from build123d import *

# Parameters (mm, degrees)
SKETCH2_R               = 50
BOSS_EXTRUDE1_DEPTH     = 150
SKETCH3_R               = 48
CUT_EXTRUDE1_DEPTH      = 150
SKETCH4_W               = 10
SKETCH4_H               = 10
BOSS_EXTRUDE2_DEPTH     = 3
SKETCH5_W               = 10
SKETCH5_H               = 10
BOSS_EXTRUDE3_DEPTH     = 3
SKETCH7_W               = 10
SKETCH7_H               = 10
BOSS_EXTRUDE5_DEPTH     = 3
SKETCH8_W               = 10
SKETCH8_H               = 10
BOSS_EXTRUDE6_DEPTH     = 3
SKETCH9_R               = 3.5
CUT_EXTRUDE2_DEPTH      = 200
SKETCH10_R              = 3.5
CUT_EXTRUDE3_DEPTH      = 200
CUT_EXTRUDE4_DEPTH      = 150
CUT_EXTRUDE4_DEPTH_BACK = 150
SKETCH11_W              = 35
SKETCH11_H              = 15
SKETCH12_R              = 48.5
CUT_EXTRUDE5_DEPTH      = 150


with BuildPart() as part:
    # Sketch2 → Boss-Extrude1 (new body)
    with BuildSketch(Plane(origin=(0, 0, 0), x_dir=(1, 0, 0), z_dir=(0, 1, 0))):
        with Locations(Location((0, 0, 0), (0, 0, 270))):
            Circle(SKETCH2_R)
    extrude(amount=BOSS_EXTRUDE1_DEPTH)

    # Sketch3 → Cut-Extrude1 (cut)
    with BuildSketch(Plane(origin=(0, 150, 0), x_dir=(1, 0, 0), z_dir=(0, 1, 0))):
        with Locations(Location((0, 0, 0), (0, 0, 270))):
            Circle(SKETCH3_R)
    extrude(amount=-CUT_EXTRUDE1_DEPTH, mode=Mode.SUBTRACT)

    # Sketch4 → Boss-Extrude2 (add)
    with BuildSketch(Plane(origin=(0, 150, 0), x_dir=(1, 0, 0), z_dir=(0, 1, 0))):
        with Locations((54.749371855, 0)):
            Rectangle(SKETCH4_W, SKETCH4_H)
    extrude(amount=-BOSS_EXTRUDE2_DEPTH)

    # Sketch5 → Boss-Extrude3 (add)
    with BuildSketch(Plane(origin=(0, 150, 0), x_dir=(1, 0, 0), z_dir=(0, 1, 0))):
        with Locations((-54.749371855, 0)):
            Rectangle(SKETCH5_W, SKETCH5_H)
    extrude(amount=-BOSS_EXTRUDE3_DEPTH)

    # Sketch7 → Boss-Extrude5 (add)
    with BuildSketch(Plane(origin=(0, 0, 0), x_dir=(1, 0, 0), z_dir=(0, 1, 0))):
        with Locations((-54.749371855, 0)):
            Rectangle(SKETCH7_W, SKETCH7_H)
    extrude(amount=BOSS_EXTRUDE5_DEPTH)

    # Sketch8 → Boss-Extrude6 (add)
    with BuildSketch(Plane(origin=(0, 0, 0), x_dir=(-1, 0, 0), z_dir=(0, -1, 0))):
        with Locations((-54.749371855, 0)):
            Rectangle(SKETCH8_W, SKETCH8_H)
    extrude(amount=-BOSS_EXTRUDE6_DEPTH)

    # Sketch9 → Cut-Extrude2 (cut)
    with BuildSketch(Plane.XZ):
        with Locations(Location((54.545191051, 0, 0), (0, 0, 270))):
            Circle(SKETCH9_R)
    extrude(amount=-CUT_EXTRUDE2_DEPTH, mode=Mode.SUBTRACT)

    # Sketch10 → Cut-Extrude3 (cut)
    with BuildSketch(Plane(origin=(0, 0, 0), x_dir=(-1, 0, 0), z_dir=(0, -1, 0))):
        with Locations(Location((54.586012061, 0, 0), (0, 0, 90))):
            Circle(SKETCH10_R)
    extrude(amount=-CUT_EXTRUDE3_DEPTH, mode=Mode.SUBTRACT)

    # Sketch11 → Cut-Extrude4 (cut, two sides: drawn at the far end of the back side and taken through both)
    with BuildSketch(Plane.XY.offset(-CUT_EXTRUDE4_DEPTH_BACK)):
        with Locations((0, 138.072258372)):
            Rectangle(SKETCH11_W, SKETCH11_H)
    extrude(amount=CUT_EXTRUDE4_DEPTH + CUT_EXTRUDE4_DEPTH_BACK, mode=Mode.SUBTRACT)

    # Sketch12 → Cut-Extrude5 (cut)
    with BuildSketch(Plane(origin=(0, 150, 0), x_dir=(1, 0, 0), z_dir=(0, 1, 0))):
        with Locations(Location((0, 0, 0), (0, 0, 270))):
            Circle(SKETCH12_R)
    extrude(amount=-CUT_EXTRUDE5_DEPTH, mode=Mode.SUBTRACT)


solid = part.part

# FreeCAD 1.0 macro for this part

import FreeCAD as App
import Part
import Sketcher

V = App.Vector

doc = App.newDocument("Part")
body = doc.addObject("PartDesign::Body", "Body")

# Sketch on XZ plane
sketch1 = body.newObject("Sketcher::SketchObject", "Sketch")
sketch1.AttachmentSupport = (doc.getObject("XZ_Plane"), [""])
sketch1.MapMode = "FlatFace"
sketch1.addGeometry(Part.Circle(V(0, 0, 0), V(0, 0, 1), 50), False)
sketch1.addConstraint([
    Sketcher.Constraint("Coincident", 0, 3, -1, 1),
    Sketcher.Constraint("Diameter", 0, 100.0),
])
pad1 = body.newObject("PartDesign::Pad", "Pad")
pad1.Profile = sketch1
pad1.Length = 150
pad1.Reversed = True

# Sketch on XZ plane
sketch2 = body.newObject("Sketcher::SketchObject", "Sketch001")
sketch2.AttachmentSupport = (doc.getObject("XZ_Plane"), [""])
sketch2.MapMode = "FlatFace"
sketch2.AttachmentOffset = App.Placement(V(0, 0, -150), App.Rotation())
sketch2.addGeometry(Part.Circle(V(0, 0, 0), V(0, 0, 1), 48), False)
sketch2.addConstraint([
    Sketcher.Constraint("Coincident", 0, 3, -1, 1),
    Sketcher.Constraint("Diameter", 0, 96.0),
])
pocket1 = body.newObject("PartDesign::Pocket", "Pocket")
pocket1.Profile = sketch2
pocket1.Length = 150
pocket1.Reversed = True

# Sketch on XZ plane
sketch3 = body.newObject("Sketcher::SketchObject", "Sketch002")
sketch3.AttachmentSupport = (doc.getObject("XZ_Plane"), [""])
sketch3.MapMode = "FlatFace"
sketch3.AttachmentOffset = App.Placement(V(0, 0, -150), App.Rotation())
sketch3.addGeometry([
    Part.LineSegment(V(49.749372, -5, 0), V(49.749372, 5, 0)),
    Part.LineSegment(V(49.749372, 5, 0), V(59.749372, 5, 0)),
    Part.LineSegment(V(59.749372, 5, 0), V(59.749372, -5, 0)),
    Part.LineSegment(V(59.749372, -5, 0), V(49.749372, -5, 0)),
], False)
sketch3.addConstraint([
    Sketcher.Constraint("Coincident", 0, 2, 1, 1),
    Sketcher.Constraint("Coincident", 1, 2, 2, 1),
    Sketcher.Constraint("Coincident", 2, 2, 3, 1),
    Sketcher.Constraint("Coincident", 3, 2, 0, 1),
    Sketcher.Constraint("Vertical", 0),
    Sketcher.Constraint("Horizontal", 1),
    Sketcher.Constraint("Vertical", 2),
    Sketcher.Constraint("Horizontal", 3),
    Sketcher.Constraint("Equal", 3, 0),
    Sketcher.Constraint("DistanceX", 1, 1, 1, 2, 10.0),
    Sketcher.Constraint("DistanceY", -1, 1, 0, 2, 5.0),
    Sketcher.Constraint("DistanceX", -1, 1, 0, 2, 49.749372),
])
pad2 = body.newObject("PartDesign::Pad", "Pad001")
pad2.Profile = sketch3
pad2.Length = 3

# Sketch on XZ plane
sketch4 = body.newObject("Sketcher::SketchObject", "Sketch003")
sketch4.AttachmentSupport = (doc.getObject("XZ_Plane"), [""])
sketch4.MapMode = "FlatFace"
sketch4.AttachmentOffset = App.Placement(V(0, 0, -150), App.Rotation())
sketch4.addGeometry([
    Part.LineSegment(V(-59.749372, -5, 0), V(-59.749372, 5, 0)),
    Part.LineSegment(V(-59.749372, 5, 0), V(-49.749372, 5, 0)),
    Part.LineSegment(V(-49.749372, 5, 0), V(-49.749372, -5, 0)),
    Part.LineSegment(V(-49.749372, -5, 0), V(-59.749372, -5, 0)),
], False)
sketch4.addConstraint([
    Sketcher.Constraint("Coincident", 0, 2, 1, 1),
    Sketcher.Constraint("Coincident", 1, 2, 2, 1),
    Sketcher.Constraint("Coincident", 2, 2, 3, 1),
    Sketcher.Constraint("Coincident", 3, 2, 0, 1),
    Sketcher.Constraint("Vertical", 0),
    Sketcher.Constraint("Horizontal", 1),
    Sketcher.Constraint("Vertical", 2),
    Sketcher.Constraint("Horizontal", 3),
    Sketcher.Constraint("Equal", 3, 0),
    Sketcher.Constraint("DistanceX", 1, 1, 1, 2, 10.0),
    Sketcher.Constraint("DistanceY", -1, 1, 0, 2, 5.0),
    Sketcher.Constraint("DistanceX", 0, 2, -1, 1, 59.749372),
])
pad3 = body.newObject("PartDesign::Pad", "Pad002")
pad3.Profile = sketch4
pad3.Length = 3

# Sketch on XZ plane
sketch5 = body.newObject("Sketcher::SketchObject", "Sketch004")
sketch5.AttachmentSupport = (doc.getObject("XZ_Plane"), [""])
sketch5.MapMode = "FlatFace"
sketch5.addGeometry([
    Part.LineSegment(V(-59.749372, -5, 0), V(-59.749372, 5, 0)),
    Part.LineSegment(V(-59.749372, 5, 0), V(-49.749372, 5, 0)),
    Part.LineSegment(V(-49.749372, 5, 0), V(-49.749372, -5, 0)),
    Part.LineSegment(V(-49.749372, -5, 0), V(-59.749372, -5, 0)),
], False)
sketch5.addConstraint([
    Sketcher.Constraint("Coincident", 0, 2, 1, 1),
    Sketcher.Constraint("Coincident", 1, 2, 2, 1),
    Sketcher.Constraint("Coincident", 2, 2, 3, 1),
    Sketcher.Constraint("Coincident", 3, 2, 0, 1),
    Sketcher.Constraint("Vertical", 0),
    Sketcher.Constraint("Horizontal", 1),
    Sketcher.Constraint("Vertical", 2),
    Sketcher.Constraint("Horizontal", 3),
    Sketcher.Constraint("Equal", 3, 0),
    Sketcher.Constraint("DistanceX", 1, 1, 1, 2, 10.0),
    Sketcher.Constraint("DistanceY", -1, 1, 0, 2, 5.0),
    Sketcher.Constraint("DistanceX", 0, 2, -1, 1, 59.749372),
])
pad4 = body.newObject("PartDesign::Pad", "Pad003")
pad4.Profile = sketch5
pad4.Length = 3
pad4.Reversed = True

# Sketch on XZ plane
sketch6 = body.newObject("Sketcher::SketchObject", "Sketch005")
sketch6.AttachmentSupport = (doc.getObject("XZ_Plane"), [""])
sketch6.MapMode = "FlatFace"
sketch6.addGeometry([
    Part.LineSegment(V(59.749372, -5, 0), V(59.749372, 5, 0)),
    Part.LineSegment(V(59.749372, 5, 0), V(49.749372, 5, 0)),
    Part.LineSegment(V(49.749372, 5, 0), V(49.749372, -5, 0)),
    Part.LineSegment(V(49.749372, -5, 0), V(59.749372, -5, 0)),
], False)
sketch6.addConstraint([
    Sketcher.Constraint("Coincident", 0, 2, 1, 1),
    Sketcher.Constraint("Coincident", 1, 2, 2, 1),
    Sketcher.Constraint("Coincident", 2, 2, 3, 1),
    Sketcher.Constraint("Coincident", 3, 2, 0, 1),
    Sketcher.Constraint("Vertical", 0),
    Sketcher.Constraint("Horizontal", 1),
    Sketcher.Constraint("Vertical", 2),
    Sketcher.Constraint("Horizontal", 3),
    Sketcher.Constraint("Equal", 3, 0),
    Sketcher.Constraint("DistanceX", 1, 2, 1, 1, 10.0),
    Sketcher.Constraint("DistanceY", -1, 1, 0, 2, 5.0),
    Sketcher.Constraint("DistanceX", -1, 1, 0, 2, 59.749372),
])
pad5 = body.newObject("PartDesign::Pad", "Pad004")
pad5.Profile = sketch6
pad5.Length = 3
pad5.Reversed = True

# Sketch on XZ plane
sketch7 = body.newObject("Sketcher::SketchObject", "Sketch006")
sketch7.AttachmentSupport = (doc.getObject("XZ_Plane"), [""])
sketch7.MapMode = "FlatFace"
sketch7.addGeometry(Part.Circle(V(54.545191, 0, 0), V(0, 0, 1), 3.5), False)
sketch7.addConstraint([
    Sketcher.Constraint("PointOnObject", 0, 3, -1),
    Sketcher.Constraint("Diameter", 0, 7.0),
    Sketcher.Constraint("DistanceX", -1, 1, 0, 3, 54.545191),
])
pocket2 = body.newObject("PartDesign::Pocket", "Pocket001")
pocket2.Profile = sketch7
pocket2.Length = 200

# Sketch on XZ plane
sketch8 = body.newObject("Sketcher::SketchObject", "Sketch007")
sketch8.AttachmentSupport = (doc.getObject("XZ_Plane"), [""])
sketch8.MapMode = "FlatFace"
sketch8.addGeometry(Part.Circle(V(-54.586012, 0, 0), V(0, 0, 1), 3.5), False)
sketch8.addConstraint([
    Sketcher.Constraint("PointOnObject", 0, 3, -1),
    Sketcher.Constraint("Diameter", 0, 7.0),
    Sketcher.Constraint("DistanceX", 0, 3, -1, 1, 54.586012),
])
pocket3 = body.newObject("PartDesign::Pocket", "Pocket002")
pocket3.Profile = sketch8
pocket3.Length = 200

# Sketch on XY plane
sketch9 = body.newObject("Sketcher::SketchObject", "Sketch008")
sketch9.AttachmentSupport = (doc.getObject("XY_Plane"), [""])
sketch9.MapMode = "FlatFace"
sketch9.addGeometry([
    Part.LineSegment(V(-17.5, 145.572258, 0), V(-17.5, 130.572258, 0)),
    Part.LineSegment(V(-17.5, 130.572258, 0), V(17.5, 130.572258, 0)),
    Part.LineSegment(V(17.5, 130.572258, 0), V(17.5, 145.572258, 0)),
    Part.LineSegment(V(17.5, 145.572258, 0), V(-17.5, 145.572258, 0)),
], False)
sketch9.addConstraint([
    Sketcher.Constraint("Coincident", 0, 2, 1, 1),
    Sketcher.Constraint("Coincident", 1, 2, 2, 1),
    Sketcher.Constraint("Coincident", 2, 2, 3, 1),
    Sketcher.Constraint("Coincident", 3, 2, 0, 1),
    Sketcher.Constraint("Vertical", 0),
    Sketcher.Constraint("Horizontal", 1),
    Sketcher.Constraint("Vertical", 2),
    Sketcher.Constraint("Horizontal", 3),
    Sketcher.Constraint("DistanceX", 1, 1, 1, 2, 35.0),
    Sketcher.Constraint("DistanceY", 0, 2, 0, 1, 15.0),
    Sketcher.Constraint("DistanceX", 0, 2, -1, 1, 17.5),
    Sketcher.Constraint("DistanceY", -1, 1, 0, 2, 130.572258),
])
pocket4 = body.newObject("PartDesign::Pocket", "Pocket003")
pocket4.Profile = sketch9
pocket4.Type = "ThroughAll"
pocket4.Midplane = True

# Sketch on XZ plane
sketch10 = body.newObject("Sketcher::SketchObject", "Sketch009")
sketch10.AttachmentSupport = (doc.getObject("XZ_Plane"), [""])
sketch10.MapMode = "FlatFace"
sketch10.AttachmentOffset = App.Placement(V(0, 0, -150), App.Rotation())
sketch10.addGeometry(Part.Circle(V(0, 0, 0), V(0, 0, 1), 48.5), False)
sketch10.addConstraint([
    Sketcher.Constraint("Coincident", 0, 3, -1, 1),
    Sketcher.Constraint("Diameter", 0, 97.0),
])
pocket5 = body.newObject("PartDesign::Pocket", "Pocket004")
pocket5.Profile = sketch10
pocket5.Length = 150
pocket5.Reversed = True

doc.recompute()
